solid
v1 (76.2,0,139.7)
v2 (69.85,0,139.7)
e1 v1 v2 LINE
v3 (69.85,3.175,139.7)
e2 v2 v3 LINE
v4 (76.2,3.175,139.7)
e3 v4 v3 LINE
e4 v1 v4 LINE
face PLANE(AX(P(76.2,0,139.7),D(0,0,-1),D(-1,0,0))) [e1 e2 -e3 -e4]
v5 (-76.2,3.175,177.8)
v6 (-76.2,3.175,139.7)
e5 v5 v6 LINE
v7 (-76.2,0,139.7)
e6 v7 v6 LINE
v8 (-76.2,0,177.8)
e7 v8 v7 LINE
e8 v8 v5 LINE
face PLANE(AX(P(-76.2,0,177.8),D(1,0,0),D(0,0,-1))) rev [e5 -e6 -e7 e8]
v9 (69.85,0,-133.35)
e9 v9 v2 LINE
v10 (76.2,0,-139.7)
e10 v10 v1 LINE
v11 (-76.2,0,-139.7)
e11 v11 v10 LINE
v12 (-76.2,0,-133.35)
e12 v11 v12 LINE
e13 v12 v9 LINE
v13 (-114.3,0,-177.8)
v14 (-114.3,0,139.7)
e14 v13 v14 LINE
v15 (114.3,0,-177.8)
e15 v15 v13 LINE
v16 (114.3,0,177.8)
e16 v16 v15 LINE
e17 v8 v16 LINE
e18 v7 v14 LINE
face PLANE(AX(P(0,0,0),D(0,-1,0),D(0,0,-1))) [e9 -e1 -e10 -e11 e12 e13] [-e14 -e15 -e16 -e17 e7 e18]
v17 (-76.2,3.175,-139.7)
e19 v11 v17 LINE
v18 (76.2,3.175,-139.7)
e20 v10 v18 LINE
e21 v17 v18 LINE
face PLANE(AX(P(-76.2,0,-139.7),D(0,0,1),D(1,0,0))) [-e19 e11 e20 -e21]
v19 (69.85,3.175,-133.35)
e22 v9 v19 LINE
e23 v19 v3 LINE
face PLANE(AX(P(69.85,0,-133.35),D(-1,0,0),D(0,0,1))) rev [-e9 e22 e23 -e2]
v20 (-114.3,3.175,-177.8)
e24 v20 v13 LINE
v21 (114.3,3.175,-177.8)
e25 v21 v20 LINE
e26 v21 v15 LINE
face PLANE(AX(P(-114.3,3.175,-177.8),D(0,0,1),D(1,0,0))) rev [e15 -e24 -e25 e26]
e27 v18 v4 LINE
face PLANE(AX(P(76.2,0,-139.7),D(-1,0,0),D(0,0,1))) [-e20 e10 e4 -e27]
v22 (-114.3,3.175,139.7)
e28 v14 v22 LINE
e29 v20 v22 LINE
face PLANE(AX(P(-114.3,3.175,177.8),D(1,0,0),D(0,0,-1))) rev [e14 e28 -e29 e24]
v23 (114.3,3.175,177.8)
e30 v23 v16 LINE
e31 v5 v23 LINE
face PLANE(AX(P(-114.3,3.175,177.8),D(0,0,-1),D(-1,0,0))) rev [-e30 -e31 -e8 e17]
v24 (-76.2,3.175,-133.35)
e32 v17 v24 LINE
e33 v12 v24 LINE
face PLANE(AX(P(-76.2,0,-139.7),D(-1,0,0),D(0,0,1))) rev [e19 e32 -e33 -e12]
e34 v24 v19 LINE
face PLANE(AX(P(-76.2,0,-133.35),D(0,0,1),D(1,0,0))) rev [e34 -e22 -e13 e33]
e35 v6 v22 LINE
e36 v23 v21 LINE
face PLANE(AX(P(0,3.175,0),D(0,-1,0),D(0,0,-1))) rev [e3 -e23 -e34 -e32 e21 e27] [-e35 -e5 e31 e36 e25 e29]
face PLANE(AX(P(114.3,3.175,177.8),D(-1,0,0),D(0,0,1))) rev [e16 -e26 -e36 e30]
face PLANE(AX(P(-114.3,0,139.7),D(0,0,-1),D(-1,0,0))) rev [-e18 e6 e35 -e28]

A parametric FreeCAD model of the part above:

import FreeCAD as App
import Part
import Sketcher
Q = App.Units.Quantity

doc = App.newDocument("Part")
body = doc.addObject("PartDesign::Body", "Body")

# Sketch on XZ plane
sketch1 = doc.addObject("Sketcher::SketchObject", "Sketch")
body.addObject(sketch1)
sketch1.AttachmentSupport = (doc.XZ_Plane, [""])
sketch1.MapMode = "FlatFace"
sketch1.addGeometry(Part.LineSegment(App.Vector(-114, -178, 0), App.Vector(-114, 178, 0)), False)
sketch1.addGeometry(Part.LineSegment(App.Vector(-114, 178, 0), App.Vector(114, 178, 0)), False)
sketch1.addGeometry(Part.LineSegment(App.Vector(114, 178, 0), App.Vector(114, -178, 0)), False)
sketch1.addGeometry(Part.LineSegment(App.Vector(114, -178, 0), App.Vector(-114, -178, 0)), False)
sketch1.addConstraint(Sketcher.Constraint("Coincident", 0, 2, 1, 1))
sketch1.addConstraint(Sketcher.Constraint("Coincident", 1, 2, 2, 1))
sketch1.addConstraint(Sketcher.Constraint("Coincident", 2, 2, 3, 1))
sketch1.addConstraint(Sketcher.Constraint("Coincident", 3, 2, 0, 1))
sketch1.addConstraint(Sketcher.Constraint("Vertical", 0))
sketch1.addConstraint(Sketcher.Constraint("Horizontal", 1))
sketch1.addConstraint(Sketcher.Constraint("Vertical", 2))
sketch1.addConstraint(Sketcher.Constraint("Horizontal", 3))
sketch1.addConstraint(Sketcher.Constraint("Symmetric", 0, 2, 2, 2, -1, 1))
sketch1.addConstraint(Sketcher.Constraint("DistanceX", 1, 1, 1, 2, Q("9 in")))
sketch1.addConstraint(Sketcher.Constraint("DistanceY", 0, 1, 0, 2, Q("14 in")))
pad1 = doc.addObject("PartDesign::Pad", "Pad")
body.addObject(pad1)
pad1.Profile = sketch1
pad1.Length = Q("0.125 in")
pad1.Reversed = True

# Sketch on XZ plane
sketch2 = doc.addObject("Sketcher::SketchObject", "Sketch001")
body.addObject(sketch2)
sketch2.AttachmentSupport = (doc.XZ_Plane, [""])
sketch2.MapMode = "FlatFace"
sketch2.AttachmentOffset = App.Placement(App.Vector(0, 0, -0.125 * 25.4), App.Rotation())
sketch2.addGeometry(Part.LineSegment(App.Vector(76, -140, 0), App.Vector(-76, -140, 0)), False)
sketch2.addGeometry(Part.LineSegment(App.Vector(-76, -140, 0), App.Vector(-76, -133, 0)), False)
sketch2.addGeometry(Part.LineSegment(App.Vector(-76, -133, 0), App.Vector(70, -133, 0)), False)
sketch2.addGeometry(Part.LineSegment(App.Vector(70, -133, 0), App.Vector(70, 140, 0)), False)
sketch2.addGeometry(Part.LineSegment(App.Vector(70, 140, 0), App.Vector(76, 140, 0)), False)
sketch2.addGeometry(Part.LineSegment(App.Vector(76, 140, 0), App.Vector(76, -140, 0)), False)
sketch2.addConstraint(Sketcher.Constraint("Coincident", 0, 2, 1, 1))
sketch2.addConstraint(Sketcher.Constraint("Coincident", 1, 2, 2, 1))
sketch2.addConstraint(Sketcher.Constraint("Coincident", 2, 2, 3, 1))
sketch2.addConstraint(Sketcher.Constraint("Coincident", 3, 2, 4, 1))
sketch2.addConstraint(Sketcher.Constraint("Coincident", 4, 2, 5, 1))
sketch2.addConstraint(Sketcher.Constraint("Coincident", 5, 2, 0, 1))
sketch2.addConstraint(Sketcher.Constraint("Horizontal", 0))
sketch2.addConstraint(Sketcher.Constraint("Vertical", 1))
sketch2.addConstraint(Sketcher.Constraint("Horizontal", 2))
sketch2.addConstraint(Sketcher.Constraint("Vertical", 3))
sketch2.addConstraint(Sketcher.Constraint("Horizontal", 4))
sketch2.addConstraint(Sketcher.Constraint("Vertical", 5))
sketch2.addConstraint(Sketcher.Constraint("Symmetric", 0, 2, 4, 2, -1, 1))
sketch2.addConstraint(Sketcher.Constraint("Equal", 4, 1))
sketch2.addConstraint(Sketcher.Constraint("DistanceX", 0, 2, 0, 1, Q("6 in")))
sketch2.addConstraint(Sketcher.Constraint("DistanceY", 5, 2, 5, 1, Q("11 in")))
sketch2.addConstraint(Sketcher.Constraint("DistanceX", 2, 1, 2, 2, Q("5.75 in")))
pocket1 = doc.addObject("PartDesign::Pocket", "Pocket")
body.addObject(pocket1)
pocket1.Profile = sketch2
pocket1.Type = "ThroughAll"
pocket1.Reversed = True

# Sketch on XZ plane
sketch3 = doc.addObject("Sketcher::SketchObject", "Sketch002")
body.addObject(sketch3)
sketch3.AttachmentSupport = (doc.XZ_Plane, [""])
sketch3.MapMode = "FlatFace"
sketch3.AttachmentOffset = App.Placement(App.Vector(0, 0, -0.125 * 25.4), App.Rotation())
sketch3.addGeometry(Part.LineSegment(App.Vector(-114, 140, 0), App.Vector(-114, 178, 0)), False)
sketch3.addGeometry(Part.LineSegment(App.Vector(-114, 178, 0), App.Vector(-76, 178, 0)), False)
sketch3.addGeometry(Part.LineSegment(App.Vector(-76, 178, 0), App.Vector(-76, 140, 0)), False)
sketch3.addGeometry(Part.LineSegment(App.Vector(-76, 140, 0), App.Vector(-114, 140, 0)), False)
sketch3.addConstraint(Sketcher.Constraint("Coincident", 0, 2, 1, 1))
sketch3.addConstraint(Sketcher.Constraint("Coincident", 1, 2, 2, 1))
sketch3.addConstraint(Sketcher.Constraint("Coincident", 2, 2, 3, 1))
sketch3.addConstraint(Sketcher.Constraint("Coincident", 3, 2, 0, 1))
sketch3.addConstraint(Sketcher.Constraint("Vertical", 0))
sketch3.addConstraint(Sketcher.Constraint("Horizontal", 1))
sketch3.addConstraint(Sketcher.Constraint("Vertical", 2))
sketch3.addConstraint(Sketcher.Constraint("Horizontal", 3))
sketch3.addConstraint(Sketcher.Constraint("Equal", 3, 0))
sketch3.addConstraint(Sketcher.Constraint("DistanceX", 1, 1, 1, 2, Q("1.5 in")))
sketch3.addConstraint(Sketcher.Constraint("DistanceY", -1, 1, 0, 2, Q("7 in")))
sketch3.addConstraint(Sketcher.Constraint("DistanceX", 1, 2, -1, 1, Q("3 in")))
pocket2 = doc.addObject("PartDesign::Pocket", "Pocket001")
body.addObject(pocket2)
pocket2.Profile = sketch3
pocket2.Type = "ThroughAll"
pocket2.Reversed = True

doc.recompute()
